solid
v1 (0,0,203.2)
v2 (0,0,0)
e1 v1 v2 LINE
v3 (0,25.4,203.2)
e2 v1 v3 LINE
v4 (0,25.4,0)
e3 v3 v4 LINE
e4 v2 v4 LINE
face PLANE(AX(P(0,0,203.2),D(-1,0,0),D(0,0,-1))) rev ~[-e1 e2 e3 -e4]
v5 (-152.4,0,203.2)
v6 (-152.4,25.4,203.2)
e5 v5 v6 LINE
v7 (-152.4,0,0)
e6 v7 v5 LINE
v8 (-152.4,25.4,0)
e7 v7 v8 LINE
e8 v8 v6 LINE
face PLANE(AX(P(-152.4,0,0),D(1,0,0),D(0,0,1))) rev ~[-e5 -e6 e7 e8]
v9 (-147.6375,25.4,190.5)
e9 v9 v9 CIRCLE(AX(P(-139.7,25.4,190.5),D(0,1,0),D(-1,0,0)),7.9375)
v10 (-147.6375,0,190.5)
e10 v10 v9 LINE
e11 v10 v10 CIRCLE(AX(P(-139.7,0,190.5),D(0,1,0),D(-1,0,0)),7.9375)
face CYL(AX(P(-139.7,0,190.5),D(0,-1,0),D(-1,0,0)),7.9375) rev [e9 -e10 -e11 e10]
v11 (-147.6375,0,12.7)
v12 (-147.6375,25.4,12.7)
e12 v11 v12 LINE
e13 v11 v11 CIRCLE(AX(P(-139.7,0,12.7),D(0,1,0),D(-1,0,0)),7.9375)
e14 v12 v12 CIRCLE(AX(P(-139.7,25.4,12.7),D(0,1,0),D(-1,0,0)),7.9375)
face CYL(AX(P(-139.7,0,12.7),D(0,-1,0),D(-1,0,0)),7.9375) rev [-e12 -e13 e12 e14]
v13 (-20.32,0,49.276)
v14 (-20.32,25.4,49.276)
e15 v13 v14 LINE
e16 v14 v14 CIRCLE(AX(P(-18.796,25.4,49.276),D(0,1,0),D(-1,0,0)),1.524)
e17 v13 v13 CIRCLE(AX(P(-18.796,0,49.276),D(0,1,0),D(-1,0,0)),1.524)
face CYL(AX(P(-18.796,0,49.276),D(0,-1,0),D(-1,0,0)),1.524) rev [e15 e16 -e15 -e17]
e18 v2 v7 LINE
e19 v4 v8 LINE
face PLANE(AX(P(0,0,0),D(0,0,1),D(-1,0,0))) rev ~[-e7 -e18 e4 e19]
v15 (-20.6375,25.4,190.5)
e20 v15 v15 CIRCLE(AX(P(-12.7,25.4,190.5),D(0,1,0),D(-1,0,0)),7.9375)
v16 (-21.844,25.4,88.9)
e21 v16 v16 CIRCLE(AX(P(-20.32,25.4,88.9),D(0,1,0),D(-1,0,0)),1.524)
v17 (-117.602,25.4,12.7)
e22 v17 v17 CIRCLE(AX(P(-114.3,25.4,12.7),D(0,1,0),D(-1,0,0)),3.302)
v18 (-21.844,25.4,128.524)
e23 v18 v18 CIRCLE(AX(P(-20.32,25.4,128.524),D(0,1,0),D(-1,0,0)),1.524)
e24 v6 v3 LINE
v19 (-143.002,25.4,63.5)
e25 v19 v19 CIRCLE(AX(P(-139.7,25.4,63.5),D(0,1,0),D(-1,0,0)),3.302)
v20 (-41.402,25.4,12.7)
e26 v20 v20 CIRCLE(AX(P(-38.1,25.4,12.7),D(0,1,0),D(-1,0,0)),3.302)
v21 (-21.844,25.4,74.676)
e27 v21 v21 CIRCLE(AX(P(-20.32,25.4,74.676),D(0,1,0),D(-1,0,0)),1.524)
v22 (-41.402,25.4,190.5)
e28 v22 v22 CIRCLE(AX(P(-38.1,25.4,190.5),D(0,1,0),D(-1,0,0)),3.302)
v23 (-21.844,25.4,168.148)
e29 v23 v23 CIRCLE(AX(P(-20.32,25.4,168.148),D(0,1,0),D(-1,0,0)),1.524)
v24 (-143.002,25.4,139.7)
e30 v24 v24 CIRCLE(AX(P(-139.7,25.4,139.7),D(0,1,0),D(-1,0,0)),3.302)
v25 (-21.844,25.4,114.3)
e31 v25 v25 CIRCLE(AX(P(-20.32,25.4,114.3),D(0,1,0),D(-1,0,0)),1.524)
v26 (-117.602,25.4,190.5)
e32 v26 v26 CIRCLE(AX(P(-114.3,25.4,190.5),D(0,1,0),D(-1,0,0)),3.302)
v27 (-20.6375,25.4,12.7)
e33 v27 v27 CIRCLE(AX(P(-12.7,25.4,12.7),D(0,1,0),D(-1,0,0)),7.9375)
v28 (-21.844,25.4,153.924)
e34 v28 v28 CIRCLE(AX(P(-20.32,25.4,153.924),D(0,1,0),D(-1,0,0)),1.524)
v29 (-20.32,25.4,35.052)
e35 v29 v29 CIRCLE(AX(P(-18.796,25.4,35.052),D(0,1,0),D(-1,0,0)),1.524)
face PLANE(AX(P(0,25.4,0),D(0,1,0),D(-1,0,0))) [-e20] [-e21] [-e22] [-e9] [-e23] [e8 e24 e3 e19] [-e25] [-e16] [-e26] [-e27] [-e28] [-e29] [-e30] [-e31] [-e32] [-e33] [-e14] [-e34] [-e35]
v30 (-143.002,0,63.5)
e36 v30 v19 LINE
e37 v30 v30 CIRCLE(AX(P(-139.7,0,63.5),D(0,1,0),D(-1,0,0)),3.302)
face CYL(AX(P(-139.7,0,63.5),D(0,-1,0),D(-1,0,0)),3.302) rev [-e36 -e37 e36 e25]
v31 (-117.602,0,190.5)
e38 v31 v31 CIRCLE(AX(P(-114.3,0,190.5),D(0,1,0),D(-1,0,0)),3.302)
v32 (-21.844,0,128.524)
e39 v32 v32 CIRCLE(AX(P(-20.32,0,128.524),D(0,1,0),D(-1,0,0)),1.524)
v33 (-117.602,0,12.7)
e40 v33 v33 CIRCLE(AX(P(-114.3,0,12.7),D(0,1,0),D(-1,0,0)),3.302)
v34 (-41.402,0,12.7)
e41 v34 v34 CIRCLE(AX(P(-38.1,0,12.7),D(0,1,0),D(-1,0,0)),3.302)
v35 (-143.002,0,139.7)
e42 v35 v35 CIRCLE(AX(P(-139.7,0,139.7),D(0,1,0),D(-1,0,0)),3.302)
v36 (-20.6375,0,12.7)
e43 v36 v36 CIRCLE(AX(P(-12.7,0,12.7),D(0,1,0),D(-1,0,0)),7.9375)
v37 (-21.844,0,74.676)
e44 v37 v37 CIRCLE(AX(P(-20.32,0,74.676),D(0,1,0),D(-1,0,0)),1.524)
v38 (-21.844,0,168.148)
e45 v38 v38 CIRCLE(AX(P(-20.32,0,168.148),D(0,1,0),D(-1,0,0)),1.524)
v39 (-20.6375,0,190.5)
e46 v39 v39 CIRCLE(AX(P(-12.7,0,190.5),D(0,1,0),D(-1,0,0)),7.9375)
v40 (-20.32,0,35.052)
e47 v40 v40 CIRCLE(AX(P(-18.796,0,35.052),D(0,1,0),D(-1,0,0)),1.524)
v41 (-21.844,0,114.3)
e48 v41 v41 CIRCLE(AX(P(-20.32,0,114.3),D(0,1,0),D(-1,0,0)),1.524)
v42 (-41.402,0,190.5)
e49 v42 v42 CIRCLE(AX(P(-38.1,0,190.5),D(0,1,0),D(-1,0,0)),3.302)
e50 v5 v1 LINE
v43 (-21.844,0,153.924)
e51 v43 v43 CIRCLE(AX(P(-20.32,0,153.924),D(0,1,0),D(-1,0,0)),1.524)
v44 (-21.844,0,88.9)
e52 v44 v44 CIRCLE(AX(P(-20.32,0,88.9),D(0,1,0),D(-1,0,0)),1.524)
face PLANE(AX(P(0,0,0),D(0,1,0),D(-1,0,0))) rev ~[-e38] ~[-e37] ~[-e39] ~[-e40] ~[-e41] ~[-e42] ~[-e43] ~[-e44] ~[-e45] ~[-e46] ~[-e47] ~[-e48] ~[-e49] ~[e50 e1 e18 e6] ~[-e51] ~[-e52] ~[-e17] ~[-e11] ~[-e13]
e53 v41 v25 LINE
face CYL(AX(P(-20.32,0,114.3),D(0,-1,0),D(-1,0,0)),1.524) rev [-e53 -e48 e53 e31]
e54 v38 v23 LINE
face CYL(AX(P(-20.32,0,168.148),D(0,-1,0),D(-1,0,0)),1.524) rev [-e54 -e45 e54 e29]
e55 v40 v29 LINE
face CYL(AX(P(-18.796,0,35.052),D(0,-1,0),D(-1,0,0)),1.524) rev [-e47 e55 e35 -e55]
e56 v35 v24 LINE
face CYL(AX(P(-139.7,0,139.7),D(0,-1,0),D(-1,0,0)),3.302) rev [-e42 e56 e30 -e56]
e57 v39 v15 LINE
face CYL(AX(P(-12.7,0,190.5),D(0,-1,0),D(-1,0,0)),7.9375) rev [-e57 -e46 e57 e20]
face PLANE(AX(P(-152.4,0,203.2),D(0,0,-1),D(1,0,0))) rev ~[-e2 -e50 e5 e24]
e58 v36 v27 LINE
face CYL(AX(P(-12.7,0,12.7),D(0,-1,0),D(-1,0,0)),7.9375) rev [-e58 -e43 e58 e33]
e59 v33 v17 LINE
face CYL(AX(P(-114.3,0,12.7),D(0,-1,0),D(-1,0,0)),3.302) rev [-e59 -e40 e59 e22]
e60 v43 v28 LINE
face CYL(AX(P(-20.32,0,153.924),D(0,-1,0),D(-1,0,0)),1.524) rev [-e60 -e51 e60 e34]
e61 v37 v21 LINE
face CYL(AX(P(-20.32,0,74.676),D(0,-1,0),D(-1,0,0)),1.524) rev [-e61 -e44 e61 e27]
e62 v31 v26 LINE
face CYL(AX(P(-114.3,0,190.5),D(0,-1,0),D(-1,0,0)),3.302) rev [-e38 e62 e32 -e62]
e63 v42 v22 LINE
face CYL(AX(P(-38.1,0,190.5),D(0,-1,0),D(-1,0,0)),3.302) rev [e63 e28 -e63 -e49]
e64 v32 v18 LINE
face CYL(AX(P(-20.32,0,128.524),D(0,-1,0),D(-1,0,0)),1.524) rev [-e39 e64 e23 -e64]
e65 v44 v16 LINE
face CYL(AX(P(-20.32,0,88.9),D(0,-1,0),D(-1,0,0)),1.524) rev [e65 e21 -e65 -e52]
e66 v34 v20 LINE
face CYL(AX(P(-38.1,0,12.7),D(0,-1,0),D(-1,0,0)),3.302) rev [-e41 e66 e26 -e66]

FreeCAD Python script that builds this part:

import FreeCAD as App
import Part
import Sketcher
from FreeCAD import Vector
Q = App.Units.Quantity

doc = App.newDocument("Part")
body = doc.addObject("PartDesign::Body", "Body")

# Sketch on XZ plane
sketch1 = body.newObject("Sketcher::SketchObject", "Sketch")
sketch1.AttachmentSupport = (doc.getObject("XZ_Plane"), [""])
sketch1.MapMode = "FlatFace"
sketch1.addGeometry([
    Part.LineSegment(Vector(0, 203.2, 0), Vector(0, 0, 0)),  # 0
    Part.LineSegment(Vector(0, 0, 0), Vector(-152.4, 0, 0)),  # 1
    Part.LineSegment(Vector(-152.4, 0, 0), Vector(-152.4, 203.2, 0)),  # 2
    Part.LineSegment(Vector(-152.4, 203.2, 0), Vector(0, 203.2, 0)),  # 3
    Part.Circle(Vector(-12.7, 12.7, 0), Vector(0, 0, 1), 7.9),  # 4
    Part.Circle(Vector(-18.8, 35.1, 0), Vector(0, 0, 1), 1.5),  # 5
    Part.Circle(Vector(-18.8, 49.3, 0), Vector(0, 0, 1), 1.5),  # 6
    Part.Circle(Vector(-38.1, 12.7, 0), Vector(0, 0, 1), 3.3),  # 7
    Part.Circle(Vector(-20.3, 74.7, 0), Vector(0, 0, 1), 1.5),  # 8
    Part.Circle(Vector(-20.3, 88.9, 0), Vector(0, 0, 1), 1.5),  # 9
    Part.Circle(Vector(-114.3, 12.7, 0), Vector(0, 0, 1), 3.3),  # 10
    Part.Circle(Vector(-139.7, 12.7, 0), Vector(0, 0, 1), 7.9),  # 11
    Part.Circle(Vector(-139.7, 63.5, 0), Vector(0, 0, 1), 3.3),  # 12
    Part.Circle(Vector(-20.3, 114.3, 0), Vector(0, 0, 1), 1.5),  # 13
    Part.Circle(Vector(-20.3, 128.5, 0), Vector(0, 0, 1), 1.5),  # 14
    Part.Circle(Vector(-20.3, 153.9, 0), Vector(0, 0, 1), 1.5),  # 15
    Part.Circle(Vector(-20.3, 168.1, 0), Vector(0, 0, 1), 1.5),  # 16
    Part.Circle(Vector(-12.7, 190.5, 0), Vector(0, 0, 1), 7.9),  # 17
    Part.Circle(Vector(-38.1, 190.5, 0), Vector(0, 0, 1), 3.3),  # 18
    Part.Circle(Vector(-139.7, 139.7, 0), Vector(0, 0, 1), 3.3),  # 19
    Part.Circle(Vector(-114.3, 190.5, 0), Vector(0, 0, 1), 3.3),  # 20
    Part.Circle(Vector(-139.7, 190.5, 0), Vector(0, 0, 1), 7.9),  # 21
], False)
sketch1.addConstraint([
    Sketcher.Constraint("Coincident", 0, 2, 1, 1),
    Sketcher.Constraint("Coincident", 1, 2, 2, 1),
    Sketcher.Constraint("Coincident", 2, 2, 3, 1),
    Sketcher.Constraint("Coincident", 3, 2, 0, 1),
    Sketcher.Constraint("Vertical", 0),
    Sketcher.Constraint("Horizontal", 1),
    Sketcher.Constraint("Vertical", 2),
    Sketcher.Constraint("Horizontal", 3),
    Sketcher.Constraint("Coincident", 0, 2, -1, 1),
    Sketcher.Constraint("Equal", 5, 6),
    Sketcher.Constraint("Equal", 6, 8),
    Sketcher.Constraint("Equal", 8, 9),
    Sketcher.Constraint("Equal", 7, 10),
    Sketcher.Constraint("Equal", 4, 11),
    Sketcher.Constraint("Equal", 10, 12),
    Sketcher.Constraint("Equal", 9, 13),
    Sketcher.Constraint("Equal", 13, 14),
    Sketcher.Constraint("Equal", 14, 15),
    Sketcher.Constraint("Equal", 15, 16),
    Sketcher.Constraint("Equal", 11, 17),
    Sketcher.Constraint("Equal", 12, 18),
    Sketcher.Constraint("Equal", 18, 19),
    Sketcher.Constraint("Equal", 19, 20),
    Sketcher.Constraint("Equal", 17, 21),
    Sketcher.Constraint("Horizontal", 4, 3, 7, 3),
    Sketcher.Constraint("Horizontal", 7, 3, 10, 3),
    Sketcher.Constraint("Horizontal", 10, 3, 11, 3),
    Sketcher.Constraint("Horizontal", 17, 3, 18, 3),
    Sketcher.Constraint("Horizontal", 18, 3, 20, 3),
    Sketcher.Constraint("Horizontal", 20, 3, 21, 3),
    Sketcher.Constraint("Vertical", 5, 3, 6, 3),
    Sketcher.Constraint("Vertical", 8, 3, 9, 3),
    Sketcher.Constraint("Vertical", 11, 3, 12, 3),
    Sketcher.Constraint("Vertical", 9, 3, 13, 3),
    Sketcher.Constraint("Vertical", 13, 3, 14, 3),
    Sketcher.Constraint("Vertical", 14, 3, 15, 3),
    Sketcher.Constraint("Vertical", 15, 3, 16, 3),
    Sketcher.Constraint("Vertical", 4, 3, 17, 3),
    Sketcher.Constraint("Vertical", 7, 3, 18, 3),
    Sketcher.Constraint("Vertical", 12, 3, 19, 3),
    Sketcher.Constraint("Vertical", 10, 3, 20, 3),
    Sketcher.Constraint("Vertical", 19, 3, 21, 3),
    Sketcher.Constraint("Diameter", 5, Q("0.12 in")),
    Sketcher.Constraint("Diameter", 7, Q("0.26 in")),
    Sketcher.Constraint("DistanceX", 1, 2, 1, 1, Q("6 in")),
    Sketcher.Constraint("DistanceY", 0, 2, 0, 1, Q("8 in")),
    Sketcher.Constraint("Diameter", 4, Q("0.625 in")),
    Sketcher.Constraint("DistanceX", 7, 3, 4, 3, Q("1 in")),
    Sketcher.Constraint("DistanceY", 6, 3, 8, 3, Q("1 in")),
    Sketcher.Constraint("DistanceX", 11, 3, 10, 3, Q("1 in")),
    Sketcher.Constraint("DistanceX", 11, 3, 4, 3, Q("5 in")),
    Sketcher.Constraint("DistanceY", 11, 3, 12, 3, Q("2 in")),
    Sketcher.Constraint("DistanceY", 9, 3, 13, 3, Q("1 in")),
    Sketcher.Constraint("DistanceY", 14, 3, 15, 3, Q("1 in")),
    Sketcher.Constraint("DistanceY", 19, 3, 18, 3, Q("2 in")),
    Sketcher.Constraint("DistanceY", 13, 3, 19, 3, Q("1 in")),
    Sketcher.Constraint("DistanceX", 4, 3, -1, 1, Q("0.5 in")),
    Sketcher.Constraint("DistanceY", -1, 1, 4, 3, Q("0.5 in")),
    Sketcher.Constraint("DistanceX", 8, 3, -1, 1, Q("0.8 in")),
    Sketcher.Constraint("DistanceY", 21, 3, 2, 2, Q("0.5 in")),
    Sketcher.Constraint("DistanceY", 4, 3, 5, 3, Q("0.88 in")),
    Sketcher.Constraint("DistanceY", 5, 3, 6, 3, Q("0.56 in")),
    Sketcher.Constraint("DistanceY", 13, 3, 14, 3, Q("0.56 in")),
    Sketcher.Constraint("DistanceY", 15, 3, 16, 3, Q("0.56 in")),
    Sketcher.Constraint("DistanceX", 5, 3, -1, 1, Q("0.74 in")),
])
pad1 = body.newObject("PartDesign::Pad", "Pad")
pad1.Profile = sketch1
pad1.Length = Q("1 in")
pad1.Reversed = True

doc.recompute()
